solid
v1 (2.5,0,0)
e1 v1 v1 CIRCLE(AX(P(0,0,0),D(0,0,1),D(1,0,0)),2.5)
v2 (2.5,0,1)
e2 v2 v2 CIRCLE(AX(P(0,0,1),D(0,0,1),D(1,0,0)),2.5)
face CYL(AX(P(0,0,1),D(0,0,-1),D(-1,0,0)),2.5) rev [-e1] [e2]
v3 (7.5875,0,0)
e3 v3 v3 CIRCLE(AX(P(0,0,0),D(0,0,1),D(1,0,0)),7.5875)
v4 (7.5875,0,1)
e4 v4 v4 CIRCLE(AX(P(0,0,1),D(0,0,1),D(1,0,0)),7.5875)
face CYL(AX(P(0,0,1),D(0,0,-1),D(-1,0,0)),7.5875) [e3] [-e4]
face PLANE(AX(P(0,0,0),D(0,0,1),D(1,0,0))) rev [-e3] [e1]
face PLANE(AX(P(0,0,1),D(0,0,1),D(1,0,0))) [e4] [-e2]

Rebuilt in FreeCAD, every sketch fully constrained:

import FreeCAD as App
import Part
import Sketcher

V = App.Vector

doc = App.newDocument("Part")
body = doc.addObject("PartDesign::Body", "Body")

# Sketch on XY plane
sketch1 = body.newObject("Sketcher::SketchObject", "Sketch")
sketch1.AttachmentSupport = (doc.getObject("XY_Plane"), [""])
sketch1.MapMode = "FlatFace"
sketch1.addGeometry([
    Part.Circle(V(0, 0, 0), V(0, 0, 1), 7.6),
    Part.Circle(V(0, 0, 0), V(0, 0, 1), 2.5),
], False)
sketch1.addConstraint([
    Sketcher.Constraint("Coincident", 0, 3, -1, 1),
    Sketcher.Constraint("Coincident", 1, 3, -1, 1),
    Sketcher.Constraint("Diameter", 1, 5.0),
    Sketcher.Constraint("Diameter", 0, 15.175),
])
pad1 = body.newObject("PartDesign::Pad", "Pad")
pad1.Profile = sketch1
pad1.Length = 1

doc.recompute()
